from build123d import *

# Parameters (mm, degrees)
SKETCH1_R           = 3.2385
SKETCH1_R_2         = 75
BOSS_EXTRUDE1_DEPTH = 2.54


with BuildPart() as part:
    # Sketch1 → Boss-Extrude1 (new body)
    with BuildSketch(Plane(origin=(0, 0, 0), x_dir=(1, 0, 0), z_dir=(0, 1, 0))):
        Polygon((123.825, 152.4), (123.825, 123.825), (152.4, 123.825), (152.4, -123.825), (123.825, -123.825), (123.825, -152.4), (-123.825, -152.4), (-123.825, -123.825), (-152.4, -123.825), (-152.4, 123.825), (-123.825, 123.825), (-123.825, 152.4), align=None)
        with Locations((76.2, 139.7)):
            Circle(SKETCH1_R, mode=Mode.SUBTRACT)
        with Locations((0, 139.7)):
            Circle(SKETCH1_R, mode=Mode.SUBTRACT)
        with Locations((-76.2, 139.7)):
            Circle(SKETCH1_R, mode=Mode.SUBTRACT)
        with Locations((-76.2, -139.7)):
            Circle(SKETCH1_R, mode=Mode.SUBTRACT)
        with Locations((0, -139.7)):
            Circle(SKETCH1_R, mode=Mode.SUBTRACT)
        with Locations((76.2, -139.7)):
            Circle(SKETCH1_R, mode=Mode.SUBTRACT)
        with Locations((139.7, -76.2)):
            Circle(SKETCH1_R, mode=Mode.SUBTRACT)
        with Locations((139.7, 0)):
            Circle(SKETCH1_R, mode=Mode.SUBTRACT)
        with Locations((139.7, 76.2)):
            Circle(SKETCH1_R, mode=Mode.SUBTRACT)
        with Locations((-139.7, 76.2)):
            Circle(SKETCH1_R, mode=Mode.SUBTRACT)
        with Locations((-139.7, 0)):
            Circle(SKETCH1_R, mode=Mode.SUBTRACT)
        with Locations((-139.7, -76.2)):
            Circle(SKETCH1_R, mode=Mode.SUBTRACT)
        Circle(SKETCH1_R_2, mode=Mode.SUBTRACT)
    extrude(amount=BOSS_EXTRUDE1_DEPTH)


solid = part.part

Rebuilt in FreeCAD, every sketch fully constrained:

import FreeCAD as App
import Part
import Sketcher
Q = App.Units.Quantity


def add_polygon(sketch, points):
    """Adds a closed chain of lines whose ends are joined by coincident constraints."""
    first, n = sketch.GeometryCount, len(points)
    for a, b in zip(points, points[1:] + points[:1]):
        sketch.addGeometry(Part.LineSegment(App.Vector(*a, 0), App.Vector(*b, 0)), False)
    for i in range(n):
        sketch.addConstraint(Sketcher.Constraint("Coincident", first + i, 2, first + (i + 1) % n, 1))

doc = App.newDocument("Part")
body = doc.addObject("PartDesign::Body", "Body")

sketch1 = body.newObject("Sketcher::SketchObject", "Sketch")
sketch1.AttachmentSupport = (doc.getObject("XZ_Plane"), [""])
sketch1.MapMode = "FlatFace"
add_polygon(sketch1, [(123.825, -123.825), (123.825, -152.4), (-123.825, -152.4), (-123.825, -123.825), (-152.4, -123.825), (-152.4, 123.825), (-123.825, 123.825), (-123.825, 152.4), (123.825, 152.4), (123.825, 123.825), (152.4, 123.825), (152.4, -123.825)])
sketch1.addGeometry(Part.Circle(App.Vector(76.2, 139.7, 0), App.Vector(0, 0, 1), 3.2385), False)
sketch1.addGeometry(Part.Circle(App.Vector(139.7, 76.2, 0), App.Vector(0, 0, 1), 3.2385), False)
sketch1.addGeometry(Part.Circle(App.Vector(0, 139.7, 0), App.Vector(0, 0, 1), 3.2385), False)
sketch1.addGeometry(Part.Circle(App.Vector(-76.2, 139.7, 0), App.Vector(0, 0, 1), 3.2385), False)
sketch1.addGeometry(Part.Circle(App.Vector(-139.7, 76.2, 0), App.Vector(0, 0, 1), 3.2385), False)
sketch1.addGeometry(Part.Circle(App.Vector(139.7, 0, 0), App.Vector(0, 0, 1), 3.2385), False)
sketch1.addGeometry(Part.Circle(App.Vector(139.7, -76.2, 0), App.Vector(0, 0, 1), 3.2385), False)
sketch1.addGeometry(Part.Circle(App.Vector(76.2, -139.7, 0), App.Vector(0, 0, 1), 3.2385), False)
sketch1.addGeometry(Part.Circle(App.Vector(0, 0, 0), App.Vector(0, 0, 1), 75), False)
sketch1.addGeometry(Part.Circle(App.Vector(-139.7, 0, 0), App.Vector(0, 0, 1), 3.2385), False)
sketch1.addGeometry(Part.Circle(App.Vector(0, -139.7, 0), App.Vector(0, 0, 1), 3.2385), False)
sketch1.addGeometry(Part.Circle(App.Vector(-139.7, -76.2, 0), App.Vector(0, 0, 1), 3.2385), False)
sketch1.addGeometry(Part.Circle(App.Vector(-76.2, -139.7, 0), App.Vector(0, 0, 1), 3.2385), False)
sketch1.addConstraint([
    Sketcher.Constraint("Vertical", 0),
    Sketcher.Constraint("Horizontal", 1),
    Sketcher.Constraint("Vertical", 2),
    Sketcher.Constraint("Horizontal", 3),
    Sketcher.Constraint("Vertical", 4),
    Sketcher.Constraint("Horizontal", 5),
    Sketcher.Constraint("Vertical", 6),
    Sketcher.Constraint("Horizontal", 7),
    Sketcher.Constraint("Vertical", 8),
    Sketcher.Constraint("Horizontal", 9),
    Sketcher.Constraint("Vertical", 10),
    Sketcher.Constraint("Horizontal", 11),
    Sketcher.Constraint("Coincident", 20, 3, -1, 1),
    Sketcher.Constraint("Equal", 12, 13),
    Sketcher.Constraint("Equal", 13, 14),
    Sketcher.Constraint("Equal", 14, 15),
    Sketcher.Constraint("Equal", 15, 16),
    Sketcher.Constraint("Equal", 16, 17),
    Sketcher.Constraint("Equal", 17, 18),
    Sketcher.Constraint("Equal", 18, 19),
    Sketcher.Constraint("Equal", 19, 21),
    Sketcher.Constraint("Equal", 21, 22),
    Sketcher.Constraint("Equal", 22, 23),
    Sketcher.Constraint("Equal", 23, 24),
    Sketcher.Constraint("Symmetric", 16, 3, 18, 3, -1, 1),
    Sketcher.Constraint("Symmetric", 15, 3, 19, 3, -1, 1),
    Sketcher.Constraint("Symmetric", 17, 3, 21, 3, -1, 1),
    Sketcher.Constraint("Symmetric", 14, 3, 22, 3, -1, 1),
    Sketcher.Constraint("Symmetric", 13, 3, 23, 3, -1, 1),
    Sketcher.Constraint("Symmetric", 12, 3, 24, 3, -1, 1),
    Sketcher.Constraint("Symmetric", 0, 2, 6, 2, -1, 1),
    Sketcher.Constraint("Symmetric", 2, 2, 8, 2, -1, 1),
    Sketcher.Constraint("Symmetric", 4, 2, 10, 2, -1, 1),
    Sketcher.Constraint("Symmetric", 12, 3, 15, 3, -2),
    Sketcher.Constraint("Symmetric", 13, 3, 16, 3, -2),
    Sketcher.Constraint("Symmetric", 5, 2, 8, 2, -2),
    Sketcher.Constraint("PointOnObject", 14, 3, -2),
    Sketcher.Constraint("PointOnObject", 17, 3, -1),
    Sketcher.Constraint("Horizontal", 12, 3, 14, 3),
    Sketcher.Constraint("Vertical", 13, 3, 17, 3),
    Sketcher.Constraint("Equal", 11, 0),
    Sketcher.Constraint("Equal", 7, 4),
    Sketcher.Constraint("Diameter", 12, Q("0.255 in")),
    Sketcher.Constraint("DistanceX", -1, 1, 12, 3, Q("3 in")),
    Sketcher.Constraint("DistanceY", -1, 1, 13, 3, Q("3 in")),
    Sketcher.Constraint("DistanceY", 0, 2, -1, 1, Q("6 in")),
    Sketcher.Constraint("DistanceX", 16, 3, 13, 3, Q("11 in")),
    Sketcher.Constraint("DistanceY", 19, 3, 12, 3, Q("11 in")),
    Sketcher.Constraint("DistanceX", 1, 2, 1, 1, Q("9.75 in")),
    Sketcher.Constraint("Diameter", 20, Q("150 mm")),
])
pad1 = body.newObject("PartDesign::Pad", "Pad")
pad1.Profile = sketch1
pad1.Length = Q("0.1 in")
pad1.Reversed = True

doc.recompute()
